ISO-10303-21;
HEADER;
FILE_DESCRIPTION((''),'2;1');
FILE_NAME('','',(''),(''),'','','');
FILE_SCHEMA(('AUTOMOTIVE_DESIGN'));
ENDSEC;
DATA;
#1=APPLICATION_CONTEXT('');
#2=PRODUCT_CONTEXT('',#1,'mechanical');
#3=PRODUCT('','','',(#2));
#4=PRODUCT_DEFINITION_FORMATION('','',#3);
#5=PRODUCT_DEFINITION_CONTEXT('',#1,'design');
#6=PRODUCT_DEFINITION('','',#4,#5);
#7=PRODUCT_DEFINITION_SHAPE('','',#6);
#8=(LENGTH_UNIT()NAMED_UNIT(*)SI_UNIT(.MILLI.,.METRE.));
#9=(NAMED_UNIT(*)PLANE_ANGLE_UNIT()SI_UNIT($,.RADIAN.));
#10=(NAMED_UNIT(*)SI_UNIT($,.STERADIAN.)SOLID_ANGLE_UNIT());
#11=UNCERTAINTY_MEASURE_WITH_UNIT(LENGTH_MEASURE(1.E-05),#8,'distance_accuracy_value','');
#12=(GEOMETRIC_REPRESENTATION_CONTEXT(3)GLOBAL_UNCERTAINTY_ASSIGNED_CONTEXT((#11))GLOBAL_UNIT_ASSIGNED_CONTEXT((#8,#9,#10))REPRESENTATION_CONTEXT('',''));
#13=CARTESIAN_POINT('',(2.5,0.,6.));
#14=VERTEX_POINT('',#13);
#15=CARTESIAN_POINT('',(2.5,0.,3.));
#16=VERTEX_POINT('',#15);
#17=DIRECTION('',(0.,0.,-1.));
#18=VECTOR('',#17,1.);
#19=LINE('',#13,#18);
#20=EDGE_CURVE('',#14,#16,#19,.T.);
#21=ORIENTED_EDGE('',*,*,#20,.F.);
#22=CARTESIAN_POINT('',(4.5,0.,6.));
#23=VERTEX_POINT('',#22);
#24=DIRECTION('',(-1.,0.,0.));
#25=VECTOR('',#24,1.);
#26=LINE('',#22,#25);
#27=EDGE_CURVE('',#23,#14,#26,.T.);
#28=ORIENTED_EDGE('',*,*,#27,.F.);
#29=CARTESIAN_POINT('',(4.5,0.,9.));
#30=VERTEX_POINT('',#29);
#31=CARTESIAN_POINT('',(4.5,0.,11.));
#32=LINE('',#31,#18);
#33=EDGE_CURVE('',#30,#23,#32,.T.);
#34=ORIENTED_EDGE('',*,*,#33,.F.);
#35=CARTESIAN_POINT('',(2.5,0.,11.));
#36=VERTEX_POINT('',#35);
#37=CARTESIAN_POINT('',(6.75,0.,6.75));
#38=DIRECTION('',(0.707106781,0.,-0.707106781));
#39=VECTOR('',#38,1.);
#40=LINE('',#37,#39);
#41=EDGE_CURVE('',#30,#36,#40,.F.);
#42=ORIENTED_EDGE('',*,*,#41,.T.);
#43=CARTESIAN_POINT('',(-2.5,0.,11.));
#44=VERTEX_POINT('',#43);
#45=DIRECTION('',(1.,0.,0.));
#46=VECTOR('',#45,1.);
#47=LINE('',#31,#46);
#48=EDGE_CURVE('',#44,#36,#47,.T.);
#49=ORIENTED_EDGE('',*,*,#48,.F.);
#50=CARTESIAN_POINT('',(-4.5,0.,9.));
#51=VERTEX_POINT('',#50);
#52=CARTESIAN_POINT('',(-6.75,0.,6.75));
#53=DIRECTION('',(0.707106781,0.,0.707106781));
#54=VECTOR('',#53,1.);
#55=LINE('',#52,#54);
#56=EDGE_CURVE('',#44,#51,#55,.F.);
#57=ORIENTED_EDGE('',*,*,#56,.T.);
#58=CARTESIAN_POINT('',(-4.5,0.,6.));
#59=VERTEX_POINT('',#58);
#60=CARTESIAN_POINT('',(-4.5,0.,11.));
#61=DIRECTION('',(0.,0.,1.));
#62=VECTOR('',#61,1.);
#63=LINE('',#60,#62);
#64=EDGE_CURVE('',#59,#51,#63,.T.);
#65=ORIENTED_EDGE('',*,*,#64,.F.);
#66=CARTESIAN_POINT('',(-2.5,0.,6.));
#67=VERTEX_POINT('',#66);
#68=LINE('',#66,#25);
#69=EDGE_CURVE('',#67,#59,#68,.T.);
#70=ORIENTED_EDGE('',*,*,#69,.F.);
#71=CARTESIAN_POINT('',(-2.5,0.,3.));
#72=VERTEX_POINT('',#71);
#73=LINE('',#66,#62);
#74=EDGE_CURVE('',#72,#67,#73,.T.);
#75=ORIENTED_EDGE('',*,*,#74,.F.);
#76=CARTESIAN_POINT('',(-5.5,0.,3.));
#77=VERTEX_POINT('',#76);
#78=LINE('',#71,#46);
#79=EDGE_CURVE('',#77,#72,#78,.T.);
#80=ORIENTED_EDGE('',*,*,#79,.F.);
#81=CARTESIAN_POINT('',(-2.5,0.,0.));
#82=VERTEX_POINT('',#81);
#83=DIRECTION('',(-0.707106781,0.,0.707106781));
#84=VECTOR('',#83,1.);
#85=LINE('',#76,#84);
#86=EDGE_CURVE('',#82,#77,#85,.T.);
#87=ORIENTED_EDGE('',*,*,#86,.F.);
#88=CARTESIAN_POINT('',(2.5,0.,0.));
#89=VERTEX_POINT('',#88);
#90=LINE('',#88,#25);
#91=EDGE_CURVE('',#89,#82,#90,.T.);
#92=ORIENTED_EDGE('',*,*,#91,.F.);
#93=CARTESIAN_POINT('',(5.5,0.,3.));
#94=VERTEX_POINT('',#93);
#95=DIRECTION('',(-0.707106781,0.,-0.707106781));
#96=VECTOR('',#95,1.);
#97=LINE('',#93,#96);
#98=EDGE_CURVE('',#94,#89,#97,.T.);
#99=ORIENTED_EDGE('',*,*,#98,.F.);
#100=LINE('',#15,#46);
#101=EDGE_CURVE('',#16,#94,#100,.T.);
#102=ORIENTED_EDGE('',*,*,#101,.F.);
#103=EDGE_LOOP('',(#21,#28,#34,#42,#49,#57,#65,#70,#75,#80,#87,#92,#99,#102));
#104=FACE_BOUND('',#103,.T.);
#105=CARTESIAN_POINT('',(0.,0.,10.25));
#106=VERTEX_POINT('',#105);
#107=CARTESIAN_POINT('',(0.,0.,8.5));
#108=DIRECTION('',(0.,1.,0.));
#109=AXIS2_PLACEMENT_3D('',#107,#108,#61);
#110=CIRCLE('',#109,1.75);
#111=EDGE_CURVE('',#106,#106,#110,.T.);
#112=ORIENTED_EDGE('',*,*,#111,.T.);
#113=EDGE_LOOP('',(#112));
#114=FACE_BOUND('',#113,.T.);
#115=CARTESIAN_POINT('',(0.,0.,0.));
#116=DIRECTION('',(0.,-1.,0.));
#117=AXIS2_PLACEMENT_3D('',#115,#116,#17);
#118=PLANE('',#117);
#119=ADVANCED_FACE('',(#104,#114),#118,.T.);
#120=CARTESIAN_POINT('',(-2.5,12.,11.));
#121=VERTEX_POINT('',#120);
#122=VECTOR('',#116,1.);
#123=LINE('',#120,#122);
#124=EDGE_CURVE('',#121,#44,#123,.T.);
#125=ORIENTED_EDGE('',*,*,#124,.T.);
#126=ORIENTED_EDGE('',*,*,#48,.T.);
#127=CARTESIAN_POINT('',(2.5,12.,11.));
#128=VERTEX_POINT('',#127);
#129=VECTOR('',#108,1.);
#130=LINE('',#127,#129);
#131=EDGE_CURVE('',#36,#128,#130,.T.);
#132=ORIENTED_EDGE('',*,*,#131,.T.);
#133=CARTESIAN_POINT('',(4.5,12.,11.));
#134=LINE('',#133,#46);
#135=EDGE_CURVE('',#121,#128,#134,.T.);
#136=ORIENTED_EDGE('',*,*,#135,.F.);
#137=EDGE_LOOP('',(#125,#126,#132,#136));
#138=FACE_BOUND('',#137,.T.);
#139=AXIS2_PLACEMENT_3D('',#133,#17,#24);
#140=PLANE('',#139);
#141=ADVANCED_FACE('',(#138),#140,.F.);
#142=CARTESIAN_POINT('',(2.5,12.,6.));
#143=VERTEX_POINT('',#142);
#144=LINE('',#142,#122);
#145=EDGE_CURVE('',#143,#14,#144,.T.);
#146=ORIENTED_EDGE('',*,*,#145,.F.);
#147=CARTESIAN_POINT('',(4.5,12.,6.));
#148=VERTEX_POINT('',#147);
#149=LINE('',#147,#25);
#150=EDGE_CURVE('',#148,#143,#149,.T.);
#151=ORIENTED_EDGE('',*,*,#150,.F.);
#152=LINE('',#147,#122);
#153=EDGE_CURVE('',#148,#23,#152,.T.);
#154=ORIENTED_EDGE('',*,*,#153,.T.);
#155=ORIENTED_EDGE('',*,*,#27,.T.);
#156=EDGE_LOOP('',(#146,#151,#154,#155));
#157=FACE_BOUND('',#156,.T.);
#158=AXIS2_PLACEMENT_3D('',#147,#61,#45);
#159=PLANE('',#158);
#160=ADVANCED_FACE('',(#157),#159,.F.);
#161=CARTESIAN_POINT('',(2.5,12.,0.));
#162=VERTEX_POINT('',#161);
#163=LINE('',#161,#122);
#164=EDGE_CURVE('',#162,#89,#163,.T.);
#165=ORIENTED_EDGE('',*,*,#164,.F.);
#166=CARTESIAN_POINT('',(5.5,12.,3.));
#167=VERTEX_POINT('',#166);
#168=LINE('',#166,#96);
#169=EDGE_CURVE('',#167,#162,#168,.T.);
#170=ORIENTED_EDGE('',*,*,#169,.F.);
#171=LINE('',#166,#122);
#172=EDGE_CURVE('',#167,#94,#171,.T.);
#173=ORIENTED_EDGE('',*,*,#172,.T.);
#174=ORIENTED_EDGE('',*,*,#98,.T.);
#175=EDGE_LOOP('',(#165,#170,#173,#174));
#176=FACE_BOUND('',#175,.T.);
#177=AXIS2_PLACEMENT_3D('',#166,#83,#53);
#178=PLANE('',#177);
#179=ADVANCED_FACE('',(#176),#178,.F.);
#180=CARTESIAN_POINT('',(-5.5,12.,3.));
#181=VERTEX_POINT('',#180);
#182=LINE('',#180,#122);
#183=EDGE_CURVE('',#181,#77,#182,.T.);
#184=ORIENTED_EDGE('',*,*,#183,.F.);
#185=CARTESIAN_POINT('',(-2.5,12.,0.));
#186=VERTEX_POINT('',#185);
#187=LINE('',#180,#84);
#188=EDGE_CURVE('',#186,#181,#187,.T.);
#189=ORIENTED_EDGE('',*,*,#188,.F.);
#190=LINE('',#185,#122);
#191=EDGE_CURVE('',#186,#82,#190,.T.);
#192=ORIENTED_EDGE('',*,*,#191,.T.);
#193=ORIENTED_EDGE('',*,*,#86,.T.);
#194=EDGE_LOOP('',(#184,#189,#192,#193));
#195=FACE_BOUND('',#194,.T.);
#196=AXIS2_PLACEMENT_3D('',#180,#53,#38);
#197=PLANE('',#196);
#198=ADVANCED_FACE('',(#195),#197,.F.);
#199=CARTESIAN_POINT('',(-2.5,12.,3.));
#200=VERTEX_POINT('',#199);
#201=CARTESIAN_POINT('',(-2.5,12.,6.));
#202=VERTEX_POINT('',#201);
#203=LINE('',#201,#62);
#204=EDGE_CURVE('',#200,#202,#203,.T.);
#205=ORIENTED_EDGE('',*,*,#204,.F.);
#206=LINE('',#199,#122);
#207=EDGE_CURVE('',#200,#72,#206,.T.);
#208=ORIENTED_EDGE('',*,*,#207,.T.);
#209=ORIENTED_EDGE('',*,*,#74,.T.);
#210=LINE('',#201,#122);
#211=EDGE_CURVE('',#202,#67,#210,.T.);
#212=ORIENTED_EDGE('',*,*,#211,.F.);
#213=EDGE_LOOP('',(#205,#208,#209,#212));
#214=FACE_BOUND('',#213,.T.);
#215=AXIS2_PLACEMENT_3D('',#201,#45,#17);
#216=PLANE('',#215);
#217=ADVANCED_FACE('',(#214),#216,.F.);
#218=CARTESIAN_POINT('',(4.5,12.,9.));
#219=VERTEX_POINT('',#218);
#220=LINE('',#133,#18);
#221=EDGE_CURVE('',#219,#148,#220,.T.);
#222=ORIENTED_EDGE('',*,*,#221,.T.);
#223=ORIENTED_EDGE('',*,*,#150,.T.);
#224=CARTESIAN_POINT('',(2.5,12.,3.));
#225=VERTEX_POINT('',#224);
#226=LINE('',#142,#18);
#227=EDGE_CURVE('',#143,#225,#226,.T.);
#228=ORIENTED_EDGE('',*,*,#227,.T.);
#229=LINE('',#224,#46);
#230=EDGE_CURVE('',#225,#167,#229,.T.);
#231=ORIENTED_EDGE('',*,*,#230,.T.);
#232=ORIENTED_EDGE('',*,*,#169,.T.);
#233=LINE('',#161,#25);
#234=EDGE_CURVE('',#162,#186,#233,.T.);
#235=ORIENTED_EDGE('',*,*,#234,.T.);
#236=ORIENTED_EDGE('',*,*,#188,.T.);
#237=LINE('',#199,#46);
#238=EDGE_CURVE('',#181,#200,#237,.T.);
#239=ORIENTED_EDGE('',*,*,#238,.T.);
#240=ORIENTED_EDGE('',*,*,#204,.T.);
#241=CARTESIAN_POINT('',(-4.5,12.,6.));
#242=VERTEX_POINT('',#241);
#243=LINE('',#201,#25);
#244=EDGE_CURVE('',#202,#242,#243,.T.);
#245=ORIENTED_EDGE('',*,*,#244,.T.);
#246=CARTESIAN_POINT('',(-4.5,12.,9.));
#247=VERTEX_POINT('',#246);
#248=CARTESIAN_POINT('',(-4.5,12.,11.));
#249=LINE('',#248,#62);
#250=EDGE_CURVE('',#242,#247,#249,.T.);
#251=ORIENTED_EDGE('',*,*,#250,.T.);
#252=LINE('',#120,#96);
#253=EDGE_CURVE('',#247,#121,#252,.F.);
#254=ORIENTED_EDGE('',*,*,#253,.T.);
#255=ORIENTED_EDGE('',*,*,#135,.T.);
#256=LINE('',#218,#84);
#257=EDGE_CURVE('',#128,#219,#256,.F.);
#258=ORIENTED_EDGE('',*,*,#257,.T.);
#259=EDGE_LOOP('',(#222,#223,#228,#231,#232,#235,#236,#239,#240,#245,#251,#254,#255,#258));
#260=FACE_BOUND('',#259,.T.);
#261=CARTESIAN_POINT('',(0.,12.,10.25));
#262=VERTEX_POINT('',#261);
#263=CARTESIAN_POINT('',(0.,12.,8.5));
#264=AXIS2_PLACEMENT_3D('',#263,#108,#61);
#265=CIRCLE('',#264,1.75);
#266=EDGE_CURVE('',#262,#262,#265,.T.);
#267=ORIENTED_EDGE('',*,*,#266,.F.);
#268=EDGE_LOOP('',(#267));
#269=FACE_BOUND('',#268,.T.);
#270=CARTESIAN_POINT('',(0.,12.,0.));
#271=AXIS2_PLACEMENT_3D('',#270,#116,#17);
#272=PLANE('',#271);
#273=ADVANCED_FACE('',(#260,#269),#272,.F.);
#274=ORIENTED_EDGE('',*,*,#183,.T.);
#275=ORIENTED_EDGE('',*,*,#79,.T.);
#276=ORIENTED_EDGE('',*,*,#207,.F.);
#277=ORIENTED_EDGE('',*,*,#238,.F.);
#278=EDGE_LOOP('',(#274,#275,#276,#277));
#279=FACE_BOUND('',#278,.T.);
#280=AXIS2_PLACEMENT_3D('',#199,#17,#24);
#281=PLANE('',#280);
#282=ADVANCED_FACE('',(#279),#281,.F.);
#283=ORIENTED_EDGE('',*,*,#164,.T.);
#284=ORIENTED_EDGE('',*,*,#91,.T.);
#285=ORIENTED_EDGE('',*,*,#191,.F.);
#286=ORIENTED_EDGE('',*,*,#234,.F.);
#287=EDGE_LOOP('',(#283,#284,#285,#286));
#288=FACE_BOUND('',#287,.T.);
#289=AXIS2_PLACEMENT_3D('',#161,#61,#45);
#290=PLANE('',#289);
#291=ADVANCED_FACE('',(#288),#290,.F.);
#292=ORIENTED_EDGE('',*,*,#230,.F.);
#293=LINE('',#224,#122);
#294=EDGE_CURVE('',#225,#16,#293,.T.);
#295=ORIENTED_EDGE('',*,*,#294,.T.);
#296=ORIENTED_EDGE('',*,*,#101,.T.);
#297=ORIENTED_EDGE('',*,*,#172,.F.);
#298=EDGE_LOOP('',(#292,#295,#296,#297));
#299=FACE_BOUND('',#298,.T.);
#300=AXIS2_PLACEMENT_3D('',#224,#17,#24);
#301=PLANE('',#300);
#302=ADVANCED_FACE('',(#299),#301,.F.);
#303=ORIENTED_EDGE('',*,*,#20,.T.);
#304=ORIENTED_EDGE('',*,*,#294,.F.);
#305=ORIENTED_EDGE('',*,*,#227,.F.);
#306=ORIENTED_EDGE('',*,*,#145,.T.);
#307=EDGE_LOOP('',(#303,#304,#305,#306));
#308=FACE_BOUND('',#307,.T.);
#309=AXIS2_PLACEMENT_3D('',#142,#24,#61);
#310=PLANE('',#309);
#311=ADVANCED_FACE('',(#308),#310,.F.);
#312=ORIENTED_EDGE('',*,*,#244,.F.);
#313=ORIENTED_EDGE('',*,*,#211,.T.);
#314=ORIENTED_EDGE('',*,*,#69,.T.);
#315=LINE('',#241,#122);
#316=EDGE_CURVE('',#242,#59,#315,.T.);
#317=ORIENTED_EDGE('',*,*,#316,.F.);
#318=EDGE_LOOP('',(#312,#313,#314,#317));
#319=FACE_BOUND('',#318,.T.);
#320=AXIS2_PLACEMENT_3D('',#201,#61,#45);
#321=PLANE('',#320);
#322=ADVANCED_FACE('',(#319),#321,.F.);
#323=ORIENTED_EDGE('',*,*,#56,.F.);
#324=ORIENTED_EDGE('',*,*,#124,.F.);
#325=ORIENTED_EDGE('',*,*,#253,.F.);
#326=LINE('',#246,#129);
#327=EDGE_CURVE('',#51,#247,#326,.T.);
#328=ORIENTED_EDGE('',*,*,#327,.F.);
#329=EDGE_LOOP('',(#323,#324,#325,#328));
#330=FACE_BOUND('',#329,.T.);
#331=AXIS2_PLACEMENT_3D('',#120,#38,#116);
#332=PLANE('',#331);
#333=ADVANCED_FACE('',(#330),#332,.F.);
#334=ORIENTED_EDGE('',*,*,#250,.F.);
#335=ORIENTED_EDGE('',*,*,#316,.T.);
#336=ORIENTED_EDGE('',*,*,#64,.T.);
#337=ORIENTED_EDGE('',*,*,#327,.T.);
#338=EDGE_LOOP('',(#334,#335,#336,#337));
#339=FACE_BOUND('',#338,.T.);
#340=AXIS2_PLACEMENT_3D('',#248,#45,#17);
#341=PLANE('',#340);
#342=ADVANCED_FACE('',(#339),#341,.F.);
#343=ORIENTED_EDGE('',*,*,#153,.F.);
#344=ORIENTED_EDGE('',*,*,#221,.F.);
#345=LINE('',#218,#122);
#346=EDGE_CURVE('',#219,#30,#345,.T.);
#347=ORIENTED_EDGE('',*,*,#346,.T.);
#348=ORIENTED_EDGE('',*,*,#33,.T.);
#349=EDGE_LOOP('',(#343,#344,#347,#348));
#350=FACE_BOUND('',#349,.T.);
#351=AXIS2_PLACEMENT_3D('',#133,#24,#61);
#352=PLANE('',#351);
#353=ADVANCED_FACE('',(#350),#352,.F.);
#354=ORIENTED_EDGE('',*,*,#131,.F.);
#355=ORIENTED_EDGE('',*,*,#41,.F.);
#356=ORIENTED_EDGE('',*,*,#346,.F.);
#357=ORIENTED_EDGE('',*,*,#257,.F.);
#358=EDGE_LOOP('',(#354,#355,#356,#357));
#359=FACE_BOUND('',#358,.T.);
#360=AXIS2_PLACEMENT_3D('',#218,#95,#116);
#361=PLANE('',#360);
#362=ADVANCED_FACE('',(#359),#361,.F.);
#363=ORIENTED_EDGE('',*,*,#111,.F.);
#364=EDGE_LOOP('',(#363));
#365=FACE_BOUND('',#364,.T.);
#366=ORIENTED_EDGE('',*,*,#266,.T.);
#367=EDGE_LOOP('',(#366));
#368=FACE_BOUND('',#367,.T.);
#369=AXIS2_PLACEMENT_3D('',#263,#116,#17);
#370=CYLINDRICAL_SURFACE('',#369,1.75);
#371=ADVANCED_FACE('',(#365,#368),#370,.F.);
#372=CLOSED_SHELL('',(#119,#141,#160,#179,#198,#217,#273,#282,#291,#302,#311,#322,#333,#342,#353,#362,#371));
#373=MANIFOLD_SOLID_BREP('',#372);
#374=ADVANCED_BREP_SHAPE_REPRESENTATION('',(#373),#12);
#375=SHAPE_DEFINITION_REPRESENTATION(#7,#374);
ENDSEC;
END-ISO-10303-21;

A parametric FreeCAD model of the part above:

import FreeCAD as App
import Part
import Sketcher
from FreeCAD import Vector
Q = App.Units.Quantity


def edges_at(feature, points):
    """Names of the edges that pass closest to the given points."""
    edges = feature.Shape.Edges
    near = lambda p: min(range(len(edges)), key=lambda i: edges[i].distToShape(Part.Vertex(*p))[0])
    return sorted({f"Edge{near(p) + 1}" for p in points})


def add_polygon(sketch, points):
    """Adds a closed chain of lines whose ends are joined by coincident constraints."""
    first, n = sketch.GeometryCount, len(points)
    for a, b in zip(points, points[1:] + points[:1]):
        sketch.addGeometry(Part.LineSegment(App.Vector(*a, 0), App.Vector(*b, 0)), False)
    for i in range(n):
        sketch.addConstraint(Sketcher.Constraint("Coincident", first + i, 2, first + (i + 1) % n, 1))

doc = App.newDocument("Part")
params = doc.addObject("Spreadsheet::Sheet", "Params")
for row, (alias, value) in enumerate([
    ("sketch1_diameter", "3.5 mm"),
    ("sketch1_width", "5 mm"),
    ("sketch1_width2", "3 mm"),
    ("sketch1_width3", "2 mm"),
    ("pad1_length", "12 mm"),
    ("chamfer_size", "2 mm"),
], start=1):
    params.set(f"A{row}", alias)
    params.set(f"B{row}", "=" + value)
    params.setAlias(f"B{row}", alias)

body = doc.addObject("PartDesign::Body", "Body")

sketch1 = body.newObject("Sketcher::SketchObject", "Sketch")
sketch1.AttachmentSupport = (doc.getObject("XZ_Plane"), [""])
sketch1.MapMode = "FlatFace"
add_polygon(sketch1, [(5.5, 3), (2.5, 0), (-2.5, 0), (-5.5, 3), (-2.5, 3), (-2.5, 6), (-4.5, 6), (-4.5, 11), (4.5, 11), (4.5, 6), (2.5, 6), (2.5, 3)])
sketch1.addGeometry(Part.Circle(Vector(0, 8.5, 0), Vector(0, 0, 1), 1.8), False)
sketch1.addConstraint([
    Sketcher.Constraint("Horizontal", 1),
    Sketcher.Constraint("Horizontal", 3),
    Sketcher.Constraint("Vertical", 4),
    Sketcher.Constraint("Horizontal", 5),
    Sketcher.Constraint("Vertical", 6),
    Sketcher.Constraint("Horizontal", 7),
    Sketcher.Constraint("Vertical", 8),
    Sketcher.Constraint("Horizontal", 9),
    Sketcher.Constraint("Vertical", 10),
    Sketcher.Constraint("Horizontal", 11),
    Sketcher.Constraint("Symmetric", 0, 2, 1, 2, -1, 1),
    Sketcher.Constraint("Symmetric", 5, 2, 8, 2, -2),
    Sketcher.Constraint("Symmetric", 3, 2, 10, 2, -2),
    Sketcher.Constraint("PointOnObject", 12, 3, -2),
    Sketcher.Constraint("Perpendicular", 0, 2),
    Sketcher.Constraint("Vertical", 1, 2, 3, 2),
    Sketcher.Constraint("Equal", 3, 11),
    Sketcher.Constraint("Equal", 11, 4),
    Sketcher.Constraint("Equal", 1, 6),
    Sketcher.Constraint("Diameter", 12, Q("3.5 mm")),
    Sketcher.Constraint("DistanceX", 1, 2, 1, 1, Q("5 mm")),
    Sketcher.Constraint("DistanceX", 3, 1, 3, 2, Q("3 mm")),
    Sketcher.Constraint("DistanceX", 5, 2, 5, 1, Q("2 mm")),
    Sketcher.Constraint("DistanceY", -1, 1, 12, 3, Q("8.5 mm")),
])
sketch1.setExpression("Constraints[31]", "Params.sketch1_diameter")
sketch1.setExpression("Constraints[32]", "Params.sketch1_width")
sketch1.setExpression("Constraints[33]", "Params.sketch1_width2")
sketch1.setExpression("Constraints[34]", "Params.sketch1_width3")
pad1 = body.newObject("PartDesign::Pad", "Pad")
pad1.Profile = sketch1
pad1.setExpression("Length", "Params.pad1_length")
pad1.Reversed = True
doc.recompute()

chamfer = body.newObject("PartDesign::Chamfer", "Chamfer")
chamfer.Base = (pad1, edges_at(pad1, [(4.5, 6, 11), (-4.5, 6, 11)]))
chamfer.setExpression("Size", "Params.chamfer_size")

doc.recompute()
